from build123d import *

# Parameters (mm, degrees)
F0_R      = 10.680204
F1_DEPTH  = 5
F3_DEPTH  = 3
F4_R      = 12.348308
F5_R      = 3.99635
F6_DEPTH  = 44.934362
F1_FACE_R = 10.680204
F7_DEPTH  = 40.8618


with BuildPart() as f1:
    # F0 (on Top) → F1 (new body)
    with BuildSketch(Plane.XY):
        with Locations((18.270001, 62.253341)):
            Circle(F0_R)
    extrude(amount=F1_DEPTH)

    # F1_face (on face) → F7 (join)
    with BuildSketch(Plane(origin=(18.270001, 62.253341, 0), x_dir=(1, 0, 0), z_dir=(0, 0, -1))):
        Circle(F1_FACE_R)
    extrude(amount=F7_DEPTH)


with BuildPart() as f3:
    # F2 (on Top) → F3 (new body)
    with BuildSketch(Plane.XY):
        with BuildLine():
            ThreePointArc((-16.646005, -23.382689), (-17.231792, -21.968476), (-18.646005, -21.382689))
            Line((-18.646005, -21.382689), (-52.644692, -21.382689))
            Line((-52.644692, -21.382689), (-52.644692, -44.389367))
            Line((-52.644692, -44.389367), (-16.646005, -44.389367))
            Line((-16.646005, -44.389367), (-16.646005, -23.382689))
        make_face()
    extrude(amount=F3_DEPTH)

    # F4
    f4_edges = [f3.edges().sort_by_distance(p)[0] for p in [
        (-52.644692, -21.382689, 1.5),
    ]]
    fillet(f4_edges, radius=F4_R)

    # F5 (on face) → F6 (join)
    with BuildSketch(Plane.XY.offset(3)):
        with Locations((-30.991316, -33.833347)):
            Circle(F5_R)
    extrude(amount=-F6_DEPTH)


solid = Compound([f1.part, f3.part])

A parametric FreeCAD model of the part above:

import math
import FreeCAD as App
import Part
import Sketcher

V = App.Vector


def edges_at(feature, points):
    """Names of the edges that pass closest to the given points."""
    edges = feature.Shape.Edges
    near = lambda p: min(range(len(edges)), key=lambda i: edges[i].distToShape(Part.Vertex(*p))[0])
    return sorted({f"Edge{near(p) + 1}" for p in points})

doc = App.newDocument("Part")
body = doc.addObject("PartDesign::Body", "Body")

# Sketch on XY plane
sketch1 = body.newObject("Sketcher::SketchObject", "Sketch")
sketch1.AttachmentSupport = (doc.getObject("XY_Plane"), [""])
sketch1.MapMode = "FlatFace"
sketch1.addGeometry(Part.Circle(V(18, 62, 0), V(0, 0, 1), 11), False)
sketch1.addConstraint([
    Sketcher.Constraint("DistanceX", -1, 1, 0, 3, 18.270001),
    Sketcher.Constraint("Diameter", 0, 21.360408),
    Sketcher.Constraint("DistanceY", -1, 1, 0, 3, 62.253341),
])
pad1 = body.newObject("PartDesign::Pad", "Pad")
pad1.Profile = sketch1
pad1.Length = 5

# Sketch on XY plane
sketch2 = body.newObject("Sketcher::SketchObject", "Sketch001")
sketch2.AttachmentSupport = (doc.getObject("XY_Plane"), [""])
sketch2.MapMode = "FlatFace"
sketch2.addGeometry(Part.Circle(V(18, 62, 0), V(0, 0, 1), 11), False)
sketch2.addConstraint([
    Sketcher.Constraint("DistanceX", -1, 1, 0, 3, 18.270001),
    Sketcher.Constraint("Diameter", 0, 21.360408),
    Sketcher.Constraint("DistanceY", -1, 1, 0, 3, 62.253341),
])
pad2 = body.newObject("PartDesign::Pad", "Pad001")
pad2.Profile = sketch2
pad2.Length = 40.8618
pad2.Reversed = True
body2 = doc.addObject("PartDesign::Body", "Body001")

# Sketch on XY plane
sketch3 = body2.newObject("Sketcher::SketchObject", "Sketch002")
sketch3.AttachmentSupport = (doc.getObject("XY_Plane001"), [""])
sketch3.MapMode = "FlatFace"
sketch3.addGeometry([
    Part.ArcOfCircle(Part.Circle(V(-18.6, -23.4, 0), V(0, 0, 1), 2), math.radians(0), math.radians(90)),  # 0
    Part.LineSegment(V(-18.6, -21.4, 0), V(-52.6, -21.4, 0)),  # 1
    Part.LineSegment(V(-52.6, -21.4, 0), V(-52.6, -44.4, 0)),  # 2
    Part.LineSegment(V(-52.6, -44.4, 0), V(-16.6, -44.4, 0)),  # 3
    Part.LineSegment(V(-16.6, -44.4, 0), V(-16.6, -23.4, 0)),  # 4
], False)
sketch3.addConstraint([
    Sketcher.Constraint("Tangent", 0, 2, 1, 1),
    Sketcher.Constraint("Coincident", 1, 2, 2, 1),
    Sketcher.Constraint("Coincident", 2, 2, 3, 1),
    Sketcher.Constraint("Coincident", 3, 2, 4, 1),
    Sketcher.Constraint("Tangent", 4, 2, 0, 1),
    Sketcher.Constraint("Horizontal", 1),
    Sketcher.Constraint("Vertical", 2),
    Sketcher.Constraint("Horizontal", 3),
    Sketcher.Constraint("Vertical", 4),
    Sketcher.Constraint("Radius", 0, 2.000002),
    Sketcher.Constraint("DistanceY", 2, 2, 2, 1, 23.006678),
    Sketcher.Constraint("DistanceX", 1, 2, 1, 1, 33.998687),
    Sketcher.Constraint("DistanceY", 0, 3, -1, 1, 23.382691),
    Sketcher.Constraint("DistanceX", 0, 3, -1, 1, 18.646007),
])
pad3 = body2.newObject("PartDesign::Pad", "Pad002")
pad3.Profile = sketch3
pad3.Length = 3
doc.recompute()

fillet = body2.newObject("PartDesign::Fillet", "Fillet")
fillet.Base = (pad3, edges_at(pad3, [(-52.645, -21.383, 1.5)]))
fillet.Radius = 12.348308

# Sketch on XY plane
sketch4 = body2.newObject("Sketcher::SketchObject", "Sketch003")
sketch4.AttachmentSupport = (doc.getObject("XY_Plane001"), [""])
sketch4.MapMode = "FlatFace"
sketch4.AttachmentOffset = App.Placement(V(0, 0, 3), App.Rotation())
sketch4.addGeometry(Part.Circle(V(-31, -33.8, 0), V(0, 0, 1), 4), False)
sketch4.addConstraint([
    Sketcher.Constraint("Diameter", 0, 7.9927),
    Sketcher.Constraint("DistanceX", 0, 3, -1, 1, 30.991316),
    Sketcher.Constraint("DistanceY", 0, 3, -1, 1, 33.833347),
])
pad4 = body2.newObject("PartDesign::Pad", "Pad003")
pad4.Profile = sketch4
pad4.Length = 44.934362
pad4.Reversed = True

doc.recompute()
